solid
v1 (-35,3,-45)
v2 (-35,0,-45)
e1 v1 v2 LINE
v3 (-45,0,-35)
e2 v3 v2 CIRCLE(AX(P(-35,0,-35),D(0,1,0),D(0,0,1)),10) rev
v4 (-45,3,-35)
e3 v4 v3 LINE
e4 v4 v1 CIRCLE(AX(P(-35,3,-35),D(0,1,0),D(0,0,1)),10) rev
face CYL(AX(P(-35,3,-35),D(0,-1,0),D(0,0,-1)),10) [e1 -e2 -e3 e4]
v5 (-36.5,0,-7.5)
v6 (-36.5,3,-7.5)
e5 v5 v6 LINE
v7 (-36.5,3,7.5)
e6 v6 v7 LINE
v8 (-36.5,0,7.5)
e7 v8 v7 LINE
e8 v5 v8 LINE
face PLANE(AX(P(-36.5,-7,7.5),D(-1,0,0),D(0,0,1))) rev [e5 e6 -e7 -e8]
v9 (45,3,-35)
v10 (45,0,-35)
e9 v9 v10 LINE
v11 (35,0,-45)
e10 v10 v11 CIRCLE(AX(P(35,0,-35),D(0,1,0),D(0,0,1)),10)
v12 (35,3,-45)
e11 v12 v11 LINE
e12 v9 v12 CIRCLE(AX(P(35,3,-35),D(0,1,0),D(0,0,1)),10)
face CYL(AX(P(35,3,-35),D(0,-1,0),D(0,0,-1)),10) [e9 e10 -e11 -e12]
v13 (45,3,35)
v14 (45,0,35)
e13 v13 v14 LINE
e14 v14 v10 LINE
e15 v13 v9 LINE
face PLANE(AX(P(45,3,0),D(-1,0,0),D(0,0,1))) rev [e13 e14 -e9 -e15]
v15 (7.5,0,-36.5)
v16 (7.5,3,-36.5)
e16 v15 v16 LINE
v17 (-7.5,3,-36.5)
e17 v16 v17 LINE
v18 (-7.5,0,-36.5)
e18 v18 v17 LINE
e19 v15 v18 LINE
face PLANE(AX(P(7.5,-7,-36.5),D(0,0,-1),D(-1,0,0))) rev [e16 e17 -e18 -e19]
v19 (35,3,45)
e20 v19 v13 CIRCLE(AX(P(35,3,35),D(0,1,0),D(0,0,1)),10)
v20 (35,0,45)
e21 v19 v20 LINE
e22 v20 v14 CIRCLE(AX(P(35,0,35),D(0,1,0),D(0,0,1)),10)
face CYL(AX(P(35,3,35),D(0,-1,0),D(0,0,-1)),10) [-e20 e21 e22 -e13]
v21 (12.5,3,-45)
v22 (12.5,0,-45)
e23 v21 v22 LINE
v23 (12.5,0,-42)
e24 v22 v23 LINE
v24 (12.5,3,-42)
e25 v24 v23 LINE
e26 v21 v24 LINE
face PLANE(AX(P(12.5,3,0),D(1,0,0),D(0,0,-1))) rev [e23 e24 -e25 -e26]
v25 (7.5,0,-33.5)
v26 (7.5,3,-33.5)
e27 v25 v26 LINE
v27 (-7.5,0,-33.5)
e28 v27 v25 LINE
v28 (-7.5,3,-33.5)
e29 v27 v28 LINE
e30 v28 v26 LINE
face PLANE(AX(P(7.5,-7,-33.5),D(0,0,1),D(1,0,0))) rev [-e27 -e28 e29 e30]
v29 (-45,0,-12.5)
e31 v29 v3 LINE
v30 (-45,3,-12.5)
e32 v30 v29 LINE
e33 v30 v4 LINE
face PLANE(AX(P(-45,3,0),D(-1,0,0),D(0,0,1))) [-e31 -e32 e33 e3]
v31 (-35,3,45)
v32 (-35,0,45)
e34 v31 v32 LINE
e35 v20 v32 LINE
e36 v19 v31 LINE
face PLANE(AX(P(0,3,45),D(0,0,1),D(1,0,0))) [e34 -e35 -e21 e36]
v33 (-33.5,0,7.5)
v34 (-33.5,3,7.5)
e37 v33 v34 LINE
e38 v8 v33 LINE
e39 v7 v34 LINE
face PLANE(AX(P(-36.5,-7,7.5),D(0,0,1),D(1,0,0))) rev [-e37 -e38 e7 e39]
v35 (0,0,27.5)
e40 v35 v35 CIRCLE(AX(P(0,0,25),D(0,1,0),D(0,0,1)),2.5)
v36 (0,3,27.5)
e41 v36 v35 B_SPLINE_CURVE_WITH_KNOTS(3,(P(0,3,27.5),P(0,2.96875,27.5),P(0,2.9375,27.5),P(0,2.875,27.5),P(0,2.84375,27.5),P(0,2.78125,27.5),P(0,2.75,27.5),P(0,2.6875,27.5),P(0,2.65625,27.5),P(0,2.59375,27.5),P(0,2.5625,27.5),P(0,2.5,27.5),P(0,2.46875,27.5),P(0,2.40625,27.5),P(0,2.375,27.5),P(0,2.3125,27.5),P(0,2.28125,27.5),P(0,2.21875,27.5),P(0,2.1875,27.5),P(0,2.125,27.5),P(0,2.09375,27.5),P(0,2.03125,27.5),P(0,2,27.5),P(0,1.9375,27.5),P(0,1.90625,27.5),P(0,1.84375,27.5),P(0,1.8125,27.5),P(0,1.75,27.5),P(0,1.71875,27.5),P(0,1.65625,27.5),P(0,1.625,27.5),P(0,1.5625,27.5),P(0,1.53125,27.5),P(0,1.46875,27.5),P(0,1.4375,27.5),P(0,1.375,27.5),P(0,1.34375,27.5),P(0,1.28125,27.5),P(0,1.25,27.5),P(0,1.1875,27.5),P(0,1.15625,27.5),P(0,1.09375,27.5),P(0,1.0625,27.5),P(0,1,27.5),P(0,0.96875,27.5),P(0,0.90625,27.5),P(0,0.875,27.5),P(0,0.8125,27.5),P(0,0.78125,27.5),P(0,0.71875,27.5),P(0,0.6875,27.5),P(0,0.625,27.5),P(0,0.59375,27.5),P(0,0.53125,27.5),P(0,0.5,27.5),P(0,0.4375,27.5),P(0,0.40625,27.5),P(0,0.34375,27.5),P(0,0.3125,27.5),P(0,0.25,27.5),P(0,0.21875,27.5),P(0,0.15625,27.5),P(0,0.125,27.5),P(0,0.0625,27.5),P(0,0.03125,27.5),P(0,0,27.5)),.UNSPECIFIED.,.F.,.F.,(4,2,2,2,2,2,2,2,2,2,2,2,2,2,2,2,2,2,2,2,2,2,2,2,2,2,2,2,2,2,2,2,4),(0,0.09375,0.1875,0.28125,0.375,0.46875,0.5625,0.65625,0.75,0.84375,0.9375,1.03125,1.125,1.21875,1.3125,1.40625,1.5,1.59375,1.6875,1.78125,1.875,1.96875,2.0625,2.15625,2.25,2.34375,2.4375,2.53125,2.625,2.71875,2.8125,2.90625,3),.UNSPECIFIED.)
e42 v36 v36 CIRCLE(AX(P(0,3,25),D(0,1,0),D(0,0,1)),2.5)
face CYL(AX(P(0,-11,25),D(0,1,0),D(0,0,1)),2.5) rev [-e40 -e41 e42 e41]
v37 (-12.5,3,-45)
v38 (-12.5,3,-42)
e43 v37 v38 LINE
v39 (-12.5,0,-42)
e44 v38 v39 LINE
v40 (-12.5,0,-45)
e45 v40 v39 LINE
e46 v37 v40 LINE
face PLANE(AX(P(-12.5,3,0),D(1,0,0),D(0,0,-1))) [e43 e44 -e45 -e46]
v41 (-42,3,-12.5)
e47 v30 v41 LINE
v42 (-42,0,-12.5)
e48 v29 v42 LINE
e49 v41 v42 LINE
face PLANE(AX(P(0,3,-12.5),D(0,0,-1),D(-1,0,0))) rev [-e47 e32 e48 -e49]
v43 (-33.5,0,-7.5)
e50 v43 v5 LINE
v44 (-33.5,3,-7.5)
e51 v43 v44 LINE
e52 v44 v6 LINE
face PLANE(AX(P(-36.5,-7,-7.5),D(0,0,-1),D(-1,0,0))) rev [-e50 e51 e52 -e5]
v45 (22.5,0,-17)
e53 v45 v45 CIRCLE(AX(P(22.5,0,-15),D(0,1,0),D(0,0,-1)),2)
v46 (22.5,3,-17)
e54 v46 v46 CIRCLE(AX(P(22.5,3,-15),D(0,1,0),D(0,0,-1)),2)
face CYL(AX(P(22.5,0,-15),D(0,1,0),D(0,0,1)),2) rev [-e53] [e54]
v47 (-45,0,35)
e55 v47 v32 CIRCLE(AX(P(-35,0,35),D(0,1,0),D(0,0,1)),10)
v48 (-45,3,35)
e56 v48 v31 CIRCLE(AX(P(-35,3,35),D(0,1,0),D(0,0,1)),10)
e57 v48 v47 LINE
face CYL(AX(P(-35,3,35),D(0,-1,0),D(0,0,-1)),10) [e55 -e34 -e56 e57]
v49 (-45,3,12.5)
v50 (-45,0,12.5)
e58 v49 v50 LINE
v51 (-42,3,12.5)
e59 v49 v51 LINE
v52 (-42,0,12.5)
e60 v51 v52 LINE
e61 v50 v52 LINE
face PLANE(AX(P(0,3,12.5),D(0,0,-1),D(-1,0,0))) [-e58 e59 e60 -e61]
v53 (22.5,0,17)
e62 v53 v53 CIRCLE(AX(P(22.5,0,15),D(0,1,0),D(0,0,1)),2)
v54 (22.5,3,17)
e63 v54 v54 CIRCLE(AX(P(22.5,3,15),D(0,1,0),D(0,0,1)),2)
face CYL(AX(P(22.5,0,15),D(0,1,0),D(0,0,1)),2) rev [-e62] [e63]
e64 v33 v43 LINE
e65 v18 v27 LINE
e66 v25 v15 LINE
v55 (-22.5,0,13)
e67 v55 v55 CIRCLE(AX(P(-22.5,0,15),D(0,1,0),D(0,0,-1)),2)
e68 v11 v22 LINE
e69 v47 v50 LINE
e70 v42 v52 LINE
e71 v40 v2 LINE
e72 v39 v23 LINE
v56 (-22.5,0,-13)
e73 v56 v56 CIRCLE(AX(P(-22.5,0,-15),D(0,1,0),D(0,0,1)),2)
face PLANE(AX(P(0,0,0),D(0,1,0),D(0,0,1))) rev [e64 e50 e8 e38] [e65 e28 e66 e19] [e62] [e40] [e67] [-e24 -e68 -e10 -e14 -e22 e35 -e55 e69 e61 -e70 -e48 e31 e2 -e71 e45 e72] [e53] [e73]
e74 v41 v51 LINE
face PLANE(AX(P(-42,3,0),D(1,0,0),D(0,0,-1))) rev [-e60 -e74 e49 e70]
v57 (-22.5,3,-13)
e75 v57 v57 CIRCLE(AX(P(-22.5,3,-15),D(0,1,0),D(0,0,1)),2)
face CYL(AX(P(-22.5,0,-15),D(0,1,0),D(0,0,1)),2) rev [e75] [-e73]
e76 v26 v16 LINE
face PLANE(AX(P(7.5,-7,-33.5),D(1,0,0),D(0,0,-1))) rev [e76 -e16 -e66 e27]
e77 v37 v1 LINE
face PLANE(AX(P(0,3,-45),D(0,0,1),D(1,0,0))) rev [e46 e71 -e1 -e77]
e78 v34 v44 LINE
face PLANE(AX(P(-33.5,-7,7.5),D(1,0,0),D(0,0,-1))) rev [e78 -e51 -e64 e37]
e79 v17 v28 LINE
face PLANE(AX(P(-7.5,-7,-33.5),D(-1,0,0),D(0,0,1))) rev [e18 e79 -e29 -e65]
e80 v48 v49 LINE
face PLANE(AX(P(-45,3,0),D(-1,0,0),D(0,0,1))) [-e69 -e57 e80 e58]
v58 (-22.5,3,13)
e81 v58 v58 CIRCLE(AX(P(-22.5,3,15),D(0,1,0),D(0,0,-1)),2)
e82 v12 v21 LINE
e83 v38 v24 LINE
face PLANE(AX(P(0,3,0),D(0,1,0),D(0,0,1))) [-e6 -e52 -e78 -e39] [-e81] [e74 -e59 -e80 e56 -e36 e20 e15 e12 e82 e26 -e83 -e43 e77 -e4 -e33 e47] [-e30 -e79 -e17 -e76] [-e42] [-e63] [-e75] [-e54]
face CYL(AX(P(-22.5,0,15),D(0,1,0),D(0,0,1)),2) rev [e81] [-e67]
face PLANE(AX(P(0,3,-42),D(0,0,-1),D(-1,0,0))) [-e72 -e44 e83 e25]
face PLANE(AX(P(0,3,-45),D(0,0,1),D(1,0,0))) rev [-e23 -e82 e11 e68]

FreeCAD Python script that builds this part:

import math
import FreeCAD as App
import Part
import Sketcher

V = App.Vector


def add_polygon(sketch, points):
    """Adds a closed chain of lines whose ends are joined by coincident constraints."""
    first, n = sketch.GeometryCount, len(points)
    for a, b in zip(points, points[1:] + points[:1]):
        sketch.addGeometry(Part.LineSegment(App.Vector(*a, 0), App.Vector(*b, 0)), False)
    for i in range(n):
        sketch.addConstraint(Sketcher.Constraint("Coincident", first + i, 2, first + (i + 1) % n, 1))

doc = App.newDocument("Part")
body = doc.addObject("PartDesign::Body", "Body")

# Sketch on XZ plane
sketch1 = body.newObject("Sketcher::SketchObject", "Sketch")
sketch1.AttachmentSupport = (doc.getObject("XZ_Plane"), [""])
sketch1.MapMode = "FlatFace"
sketch1.addGeometry(Part.LineSegment(V(-35, 45, 0), V(35, 45, 0)), False)
sketch1.addGeometry(Part.ArcOfCircle(Part.Circle(V(35, 35, 0), V(0, 0, 1), 10), math.radians(0), math.radians(90)), False)
sketch1.addGeometry(Part.LineSegment(V(45, 35, 0), V(45, -35, 0)), False)
sketch1.addGeometry(Part.ArcOfCircle(Part.Circle(V(35, -35, 0), V(0, 0, 1), 10), math.radians(-90), math.radians(0)), False)
sketch1.addGeometry(Part.LineSegment(V(35, -45, 0), V(12.5, -45, 0)), False)
sketch1.addGeometry(Part.LineSegment(V(12.5, -45, 0), V(12.5, -42, 0)), False)
sketch1.addGeometry(Part.LineSegment(V(12.5, -42, 0), V(-12.5, -42, 0)), False)
sketch1.addGeometry(Part.LineSegment(V(-12.5, -42, 0), V(-12.5, -45, 0)), False)
sketch1.addGeometry(Part.LineSegment(V(-12.5, -45, 0), V(-35, -45, 0)), False)
sketch1.addGeometry(Part.ArcOfCircle(Part.Circle(V(-35, -35, 0), V(0, 0, 1), 10), math.radians(180), math.radians(270)), False)
sketch1.addGeometry(Part.LineSegment(V(-45, -35, 0), V(-45, -12.5, 0)), False)
sketch1.addGeometry(Part.LineSegment(V(-45, -12.5, 0), V(-42, -12.5, 0)), False)
sketch1.addGeometry(Part.LineSegment(V(-42, -12.5, 0), V(-42, 12.5, 0)), False)
sketch1.addGeometry(Part.LineSegment(V(-42, 12.5, 0), V(-45, 12.5, 0)), False)
sketch1.addGeometry(Part.LineSegment(V(-45, 12.5, 0), V(-45, 35, 0)), False)
sketch1.addGeometry(Part.ArcOfCircle(Part.Circle(V(-35, 35, 0), V(0, 0, 1), 10), math.radians(90), math.radians(180)), False)
sketch1.addConstraint(Sketcher.Constraint("Tangent", 0, 2, 1, 2))
sketch1.addConstraint(Sketcher.Constraint("Tangent", 1, 1, 2, 1))
sketch1.addConstraint(Sketcher.Constraint("Tangent", 2, 2, 3, 2))
sketch1.addConstraint(Sketcher.Constraint("Tangent", 3, 1, 4, 1))
sketch1.addConstraint(Sketcher.Constraint("Coincident", 4, 2, 5, 1))
sketch1.addConstraint(Sketcher.Constraint("Coincident", 5, 2, 6, 1))
sketch1.addConstraint(Sketcher.Constraint("Coincident", 6, 2, 7, 1))
sketch1.addConstraint(Sketcher.Constraint("Coincident", 7, 2, 8, 1))
sketch1.addConstraint(Sketcher.Constraint("Tangent", 8, 2, 9, 2))
sketch1.addConstraint(Sketcher.Constraint("Tangent", 9, 1, 10, 1))
sketch1.addConstraint(Sketcher.Constraint("Coincident", 10, 2, 11, 1))
sketch1.addConstraint(Sketcher.Constraint("Coincident", 11, 2, 12, 1))
sketch1.addConstraint(Sketcher.Constraint("Coincident", 12, 2, 13, 1))
sketch1.addConstraint(Sketcher.Constraint("Coincident", 13, 2, 14, 1))
sketch1.addConstraint(Sketcher.Constraint("Tangent", 14, 2, 15, 2))
sketch1.addConstraint(Sketcher.Constraint("Tangent", 15, 1, 0, 1))
sketch1.addConstraint(Sketcher.Constraint("Horizontal", 0))
sketch1.addConstraint(Sketcher.Constraint("Vertical", 2))
sketch1.addConstraint(Sketcher.Constraint("Horizontal", 4))
sketch1.addConstraint(Sketcher.Constraint("Vertical", 5))
sketch1.addConstraint(Sketcher.Constraint("Horizontal", 6))
sketch1.addConstraint(Sketcher.Constraint("Vertical", 7))
sketch1.addConstraint(Sketcher.Constraint("Horizontal", 8))
sketch1.addConstraint(Sketcher.Constraint("Vertical", 10))
sketch1.addConstraint(Sketcher.Constraint("Horizontal", 11))
sketch1.addConstraint(Sketcher.Constraint("Vertical", 12))
sketch1.addConstraint(Sketcher.Constraint("Horizontal", 13))
sketch1.addConstraint(Sketcher.Constraint("Vertical", 14))
sketch1.addConstraint(Sketcher.Constraint("Equal", 1, 3))
sketch1.addConstraint(Sketcher.Constraint("Equal", 3, 9))
sketch1.addConstraint(Sketcher.Constraint("Equal", 9, 15))
sketch1.addConstraint(Sketcher.Constraint("Symmetric", 1, 3, 9, 3, -1, 1))
sketch1.addConstraint(Sketcher.Constraint("Symmetric", 3, 3, 15, 3, -1, 1))
sketch1.addConstraint(Sketcher.Constraint("Equal", 4, 8))
sketch1.addConstraint(Sketcher.Constraint("Equal", 0, 2))
sketch1.addConstraint(Sketcher.Constraint("Equal", 13, 5))
sketch1.addConstraint(Sketcher.Constraint("Equal", 8, 10))
sketch1.addConstraint(Sketcher.Constraint("Equal", 6, 12))
sketch1.addConstraint(Sketcher.Constraint("Radius", 1, 10.0))
sketch1.addConstraint(Sketcher.Constraint("DistanceX", 0, 1, 0, 2, 70.0))
sketch1.addConstraint(Sketcher.Constraint("DistanceX", 6, 2, 6, 1, 25.0))
sketch1.addConstraint(Sketcher.Constraint("DistanceX", 11, 1, 11, 2, 3.0))
pad1 = body.newObject("PartDesign::Pad", "Pad")
pad1.Profile = sketch1
pad1.Length = 3
pad1.Reversed = True

# Sketch on XZ plane
sketch2 = body.newObject("Sketcher::SketchObject", "Sketch001")
sketch2.AttachmentSupport = (doc.getObject("XZ_Plane"), [""])
sketch2.MapMode = "FlatFace"
sketch2.AttachmentOffset = App.Placement(V(0, 0, -3), App.Rotation())
sketch2.addGeometry(Part.Circle(V(-22.5, -15, 0), V(0, 0, 1), 2), False)
sketch2.addGeometry(Part.Circle(V(22.5, -15, 0), V(0, 0, 1), 2), False)
sketch2.addGeometry(Part.Circle(V(22.5, 15, 0), V(0, 0, 1), 2), False)
sketch2.addGeometry(Part.Circle(V(-22.5, 15, 0), V(0, 0, 1), 2), False)
sketch2.addConstraint(Sketcher.Constraint("Equal", 0, 1))
sketch2.addConstraint(Sketcher.Constraint("Equal", 1, 2))
sketch2.addConstraint(Sketcher.Constraint("Equal", 2, 3))
sketch2.addConstraint(Sketcher.Constraint("Symmetric", 0, 3, 2, 3, -1, 1))
sketch2.addConstraint(Sketcher.Constraint("Symmetric", 1, 3, 3, 3, -1, 1))
sketch2.addConstraint(Sketcher.Constraint("Symmetric", 0, 3, 1, 3, -2))
sketch2.addConstraint(Sketcher.Constraint("Diameter", 0, 4.0))
sketch2.addConstraint(Sketcher.Constraint("DistanceY", 0, 3, -1, 1, 15.0))
sketch2.addConstraint(Sketcher.Constraint("DistanceX", 0, 3, 1, 3, 45.0))
pocket1 = body.newObject("PartDesign::Pocket", "Pocket")
pocket1.Profile = sketch2
pocket1.Length = 3
pocket1.Reversed = True

# Sketch on XZ plane
sketch3 = body.newObject("Sketcher::SketchObject", "Sketch002")
sketch3.AttachmentSupport = (doc.getObject("XZ_Plane"), [""])
sketch3.MapMode = "FlatFace"
sketch3.AttachmentOffset = App.Placement(V(0, 0, -3), App.Rotation())
add_polygon(sketch3, [(-7.5, -36.5), (-7.5, -33.5), (7.5, -33.5), (7.5, -36.5)])  # lines 0-3
add_polygon(sketch3, [(-36.5, -7.5), (-36.5, 7.5), (-33.5, 7.5), (-33.5, -7.5)])  # lines 4-7
sketch3.addConstraint(Sketcher.Constraint("Vertical", 0))
sketch3.addConstraint(Sketcher.Constraint("Horizontal", 1))
sketch3.addConstraint(Sketcher.Constraint("Vertical", 2))
sketch3.addConstraint(Sketcher.Constraint("Horizontal", 3))
sketch3.addConstraint(Sketcher.Constraint("Vertical", 4))
sketch3.addConstraint(Sketcher.Constraint("Horizontal", 5))
sketch3.addConstraint(Sketcher.Constraint("Vertical", 6))
sketch3.addConstraint(Sketcher.Constraint("Horizontal", 7))
sketch3.addConstraint(Sketcher.Constraint("Equal", 7, 0))
sketch3.addConstraint(Sketcher.Constraint("Equal", 3, 4))
sketch3.addConstraint(Sketcher.Constraint("DistanceX", 1, 1, 1, 2, 15.0))
sketch3.addConstraint(Sketcher.Constraint("DistanceX", 5, 1, 5, 2, 3.0))
sketch3.addConstraint(Sketcher.Constraint("DistanceX", 4, 2, 0, 2, 29.0))
sketch3.addConstraint(Sketcher.Constraint("DistanceY", 0, 2, 4, 2, 41.0))
sketch3.addConstraint(Sketcher.Constraint("DistanceX", 0, 2, -1, 1, 7.5))
sketch3.addConstraint(Sketcher.Constraint("DistanceY", 0, 2, -1, 1, 33.5))
pocket2 = body.newObject("PartDesign::Pocket", "Pocket001")
pocket2.Profile = sketch3
pocket2.Length = 10
pocket2.Reversed = True

# Sketch on XZ plane
sketch4 = body.newObject("Sketcher::SketchObject", "Sketch003")
sketch4.AttachmentSupport = (doc.getObject("XZ_Plane"), [""])
sketch4.MapMode = "FlatFace"
sketch4.AttachmentOffset = App.Placement(V(0, 0, -3), App.Rotation())
sketch4.addGeometry(Part.Circle(V(0, 25, 0), V(0, 0, 1), 2.5), False)
sketch4.addConstraint(Sketcher.Constraint("PointOnObject", 0, 3, -2))
sketch4.addConstraint(Sketcher.Constraint("Diameter", 0, 5.0))
sketch4.addConstraint(Sketcher.Constraint("DistanceY", -1, 1, 0, 3, 25.0))
pocket3 = body.newObject("PartDesign::Pocket", "Pocket002")
pocket3.Profile = sketch4
pocket3.Length = 14
pocket3.Reversed = True

doc.recompute()
